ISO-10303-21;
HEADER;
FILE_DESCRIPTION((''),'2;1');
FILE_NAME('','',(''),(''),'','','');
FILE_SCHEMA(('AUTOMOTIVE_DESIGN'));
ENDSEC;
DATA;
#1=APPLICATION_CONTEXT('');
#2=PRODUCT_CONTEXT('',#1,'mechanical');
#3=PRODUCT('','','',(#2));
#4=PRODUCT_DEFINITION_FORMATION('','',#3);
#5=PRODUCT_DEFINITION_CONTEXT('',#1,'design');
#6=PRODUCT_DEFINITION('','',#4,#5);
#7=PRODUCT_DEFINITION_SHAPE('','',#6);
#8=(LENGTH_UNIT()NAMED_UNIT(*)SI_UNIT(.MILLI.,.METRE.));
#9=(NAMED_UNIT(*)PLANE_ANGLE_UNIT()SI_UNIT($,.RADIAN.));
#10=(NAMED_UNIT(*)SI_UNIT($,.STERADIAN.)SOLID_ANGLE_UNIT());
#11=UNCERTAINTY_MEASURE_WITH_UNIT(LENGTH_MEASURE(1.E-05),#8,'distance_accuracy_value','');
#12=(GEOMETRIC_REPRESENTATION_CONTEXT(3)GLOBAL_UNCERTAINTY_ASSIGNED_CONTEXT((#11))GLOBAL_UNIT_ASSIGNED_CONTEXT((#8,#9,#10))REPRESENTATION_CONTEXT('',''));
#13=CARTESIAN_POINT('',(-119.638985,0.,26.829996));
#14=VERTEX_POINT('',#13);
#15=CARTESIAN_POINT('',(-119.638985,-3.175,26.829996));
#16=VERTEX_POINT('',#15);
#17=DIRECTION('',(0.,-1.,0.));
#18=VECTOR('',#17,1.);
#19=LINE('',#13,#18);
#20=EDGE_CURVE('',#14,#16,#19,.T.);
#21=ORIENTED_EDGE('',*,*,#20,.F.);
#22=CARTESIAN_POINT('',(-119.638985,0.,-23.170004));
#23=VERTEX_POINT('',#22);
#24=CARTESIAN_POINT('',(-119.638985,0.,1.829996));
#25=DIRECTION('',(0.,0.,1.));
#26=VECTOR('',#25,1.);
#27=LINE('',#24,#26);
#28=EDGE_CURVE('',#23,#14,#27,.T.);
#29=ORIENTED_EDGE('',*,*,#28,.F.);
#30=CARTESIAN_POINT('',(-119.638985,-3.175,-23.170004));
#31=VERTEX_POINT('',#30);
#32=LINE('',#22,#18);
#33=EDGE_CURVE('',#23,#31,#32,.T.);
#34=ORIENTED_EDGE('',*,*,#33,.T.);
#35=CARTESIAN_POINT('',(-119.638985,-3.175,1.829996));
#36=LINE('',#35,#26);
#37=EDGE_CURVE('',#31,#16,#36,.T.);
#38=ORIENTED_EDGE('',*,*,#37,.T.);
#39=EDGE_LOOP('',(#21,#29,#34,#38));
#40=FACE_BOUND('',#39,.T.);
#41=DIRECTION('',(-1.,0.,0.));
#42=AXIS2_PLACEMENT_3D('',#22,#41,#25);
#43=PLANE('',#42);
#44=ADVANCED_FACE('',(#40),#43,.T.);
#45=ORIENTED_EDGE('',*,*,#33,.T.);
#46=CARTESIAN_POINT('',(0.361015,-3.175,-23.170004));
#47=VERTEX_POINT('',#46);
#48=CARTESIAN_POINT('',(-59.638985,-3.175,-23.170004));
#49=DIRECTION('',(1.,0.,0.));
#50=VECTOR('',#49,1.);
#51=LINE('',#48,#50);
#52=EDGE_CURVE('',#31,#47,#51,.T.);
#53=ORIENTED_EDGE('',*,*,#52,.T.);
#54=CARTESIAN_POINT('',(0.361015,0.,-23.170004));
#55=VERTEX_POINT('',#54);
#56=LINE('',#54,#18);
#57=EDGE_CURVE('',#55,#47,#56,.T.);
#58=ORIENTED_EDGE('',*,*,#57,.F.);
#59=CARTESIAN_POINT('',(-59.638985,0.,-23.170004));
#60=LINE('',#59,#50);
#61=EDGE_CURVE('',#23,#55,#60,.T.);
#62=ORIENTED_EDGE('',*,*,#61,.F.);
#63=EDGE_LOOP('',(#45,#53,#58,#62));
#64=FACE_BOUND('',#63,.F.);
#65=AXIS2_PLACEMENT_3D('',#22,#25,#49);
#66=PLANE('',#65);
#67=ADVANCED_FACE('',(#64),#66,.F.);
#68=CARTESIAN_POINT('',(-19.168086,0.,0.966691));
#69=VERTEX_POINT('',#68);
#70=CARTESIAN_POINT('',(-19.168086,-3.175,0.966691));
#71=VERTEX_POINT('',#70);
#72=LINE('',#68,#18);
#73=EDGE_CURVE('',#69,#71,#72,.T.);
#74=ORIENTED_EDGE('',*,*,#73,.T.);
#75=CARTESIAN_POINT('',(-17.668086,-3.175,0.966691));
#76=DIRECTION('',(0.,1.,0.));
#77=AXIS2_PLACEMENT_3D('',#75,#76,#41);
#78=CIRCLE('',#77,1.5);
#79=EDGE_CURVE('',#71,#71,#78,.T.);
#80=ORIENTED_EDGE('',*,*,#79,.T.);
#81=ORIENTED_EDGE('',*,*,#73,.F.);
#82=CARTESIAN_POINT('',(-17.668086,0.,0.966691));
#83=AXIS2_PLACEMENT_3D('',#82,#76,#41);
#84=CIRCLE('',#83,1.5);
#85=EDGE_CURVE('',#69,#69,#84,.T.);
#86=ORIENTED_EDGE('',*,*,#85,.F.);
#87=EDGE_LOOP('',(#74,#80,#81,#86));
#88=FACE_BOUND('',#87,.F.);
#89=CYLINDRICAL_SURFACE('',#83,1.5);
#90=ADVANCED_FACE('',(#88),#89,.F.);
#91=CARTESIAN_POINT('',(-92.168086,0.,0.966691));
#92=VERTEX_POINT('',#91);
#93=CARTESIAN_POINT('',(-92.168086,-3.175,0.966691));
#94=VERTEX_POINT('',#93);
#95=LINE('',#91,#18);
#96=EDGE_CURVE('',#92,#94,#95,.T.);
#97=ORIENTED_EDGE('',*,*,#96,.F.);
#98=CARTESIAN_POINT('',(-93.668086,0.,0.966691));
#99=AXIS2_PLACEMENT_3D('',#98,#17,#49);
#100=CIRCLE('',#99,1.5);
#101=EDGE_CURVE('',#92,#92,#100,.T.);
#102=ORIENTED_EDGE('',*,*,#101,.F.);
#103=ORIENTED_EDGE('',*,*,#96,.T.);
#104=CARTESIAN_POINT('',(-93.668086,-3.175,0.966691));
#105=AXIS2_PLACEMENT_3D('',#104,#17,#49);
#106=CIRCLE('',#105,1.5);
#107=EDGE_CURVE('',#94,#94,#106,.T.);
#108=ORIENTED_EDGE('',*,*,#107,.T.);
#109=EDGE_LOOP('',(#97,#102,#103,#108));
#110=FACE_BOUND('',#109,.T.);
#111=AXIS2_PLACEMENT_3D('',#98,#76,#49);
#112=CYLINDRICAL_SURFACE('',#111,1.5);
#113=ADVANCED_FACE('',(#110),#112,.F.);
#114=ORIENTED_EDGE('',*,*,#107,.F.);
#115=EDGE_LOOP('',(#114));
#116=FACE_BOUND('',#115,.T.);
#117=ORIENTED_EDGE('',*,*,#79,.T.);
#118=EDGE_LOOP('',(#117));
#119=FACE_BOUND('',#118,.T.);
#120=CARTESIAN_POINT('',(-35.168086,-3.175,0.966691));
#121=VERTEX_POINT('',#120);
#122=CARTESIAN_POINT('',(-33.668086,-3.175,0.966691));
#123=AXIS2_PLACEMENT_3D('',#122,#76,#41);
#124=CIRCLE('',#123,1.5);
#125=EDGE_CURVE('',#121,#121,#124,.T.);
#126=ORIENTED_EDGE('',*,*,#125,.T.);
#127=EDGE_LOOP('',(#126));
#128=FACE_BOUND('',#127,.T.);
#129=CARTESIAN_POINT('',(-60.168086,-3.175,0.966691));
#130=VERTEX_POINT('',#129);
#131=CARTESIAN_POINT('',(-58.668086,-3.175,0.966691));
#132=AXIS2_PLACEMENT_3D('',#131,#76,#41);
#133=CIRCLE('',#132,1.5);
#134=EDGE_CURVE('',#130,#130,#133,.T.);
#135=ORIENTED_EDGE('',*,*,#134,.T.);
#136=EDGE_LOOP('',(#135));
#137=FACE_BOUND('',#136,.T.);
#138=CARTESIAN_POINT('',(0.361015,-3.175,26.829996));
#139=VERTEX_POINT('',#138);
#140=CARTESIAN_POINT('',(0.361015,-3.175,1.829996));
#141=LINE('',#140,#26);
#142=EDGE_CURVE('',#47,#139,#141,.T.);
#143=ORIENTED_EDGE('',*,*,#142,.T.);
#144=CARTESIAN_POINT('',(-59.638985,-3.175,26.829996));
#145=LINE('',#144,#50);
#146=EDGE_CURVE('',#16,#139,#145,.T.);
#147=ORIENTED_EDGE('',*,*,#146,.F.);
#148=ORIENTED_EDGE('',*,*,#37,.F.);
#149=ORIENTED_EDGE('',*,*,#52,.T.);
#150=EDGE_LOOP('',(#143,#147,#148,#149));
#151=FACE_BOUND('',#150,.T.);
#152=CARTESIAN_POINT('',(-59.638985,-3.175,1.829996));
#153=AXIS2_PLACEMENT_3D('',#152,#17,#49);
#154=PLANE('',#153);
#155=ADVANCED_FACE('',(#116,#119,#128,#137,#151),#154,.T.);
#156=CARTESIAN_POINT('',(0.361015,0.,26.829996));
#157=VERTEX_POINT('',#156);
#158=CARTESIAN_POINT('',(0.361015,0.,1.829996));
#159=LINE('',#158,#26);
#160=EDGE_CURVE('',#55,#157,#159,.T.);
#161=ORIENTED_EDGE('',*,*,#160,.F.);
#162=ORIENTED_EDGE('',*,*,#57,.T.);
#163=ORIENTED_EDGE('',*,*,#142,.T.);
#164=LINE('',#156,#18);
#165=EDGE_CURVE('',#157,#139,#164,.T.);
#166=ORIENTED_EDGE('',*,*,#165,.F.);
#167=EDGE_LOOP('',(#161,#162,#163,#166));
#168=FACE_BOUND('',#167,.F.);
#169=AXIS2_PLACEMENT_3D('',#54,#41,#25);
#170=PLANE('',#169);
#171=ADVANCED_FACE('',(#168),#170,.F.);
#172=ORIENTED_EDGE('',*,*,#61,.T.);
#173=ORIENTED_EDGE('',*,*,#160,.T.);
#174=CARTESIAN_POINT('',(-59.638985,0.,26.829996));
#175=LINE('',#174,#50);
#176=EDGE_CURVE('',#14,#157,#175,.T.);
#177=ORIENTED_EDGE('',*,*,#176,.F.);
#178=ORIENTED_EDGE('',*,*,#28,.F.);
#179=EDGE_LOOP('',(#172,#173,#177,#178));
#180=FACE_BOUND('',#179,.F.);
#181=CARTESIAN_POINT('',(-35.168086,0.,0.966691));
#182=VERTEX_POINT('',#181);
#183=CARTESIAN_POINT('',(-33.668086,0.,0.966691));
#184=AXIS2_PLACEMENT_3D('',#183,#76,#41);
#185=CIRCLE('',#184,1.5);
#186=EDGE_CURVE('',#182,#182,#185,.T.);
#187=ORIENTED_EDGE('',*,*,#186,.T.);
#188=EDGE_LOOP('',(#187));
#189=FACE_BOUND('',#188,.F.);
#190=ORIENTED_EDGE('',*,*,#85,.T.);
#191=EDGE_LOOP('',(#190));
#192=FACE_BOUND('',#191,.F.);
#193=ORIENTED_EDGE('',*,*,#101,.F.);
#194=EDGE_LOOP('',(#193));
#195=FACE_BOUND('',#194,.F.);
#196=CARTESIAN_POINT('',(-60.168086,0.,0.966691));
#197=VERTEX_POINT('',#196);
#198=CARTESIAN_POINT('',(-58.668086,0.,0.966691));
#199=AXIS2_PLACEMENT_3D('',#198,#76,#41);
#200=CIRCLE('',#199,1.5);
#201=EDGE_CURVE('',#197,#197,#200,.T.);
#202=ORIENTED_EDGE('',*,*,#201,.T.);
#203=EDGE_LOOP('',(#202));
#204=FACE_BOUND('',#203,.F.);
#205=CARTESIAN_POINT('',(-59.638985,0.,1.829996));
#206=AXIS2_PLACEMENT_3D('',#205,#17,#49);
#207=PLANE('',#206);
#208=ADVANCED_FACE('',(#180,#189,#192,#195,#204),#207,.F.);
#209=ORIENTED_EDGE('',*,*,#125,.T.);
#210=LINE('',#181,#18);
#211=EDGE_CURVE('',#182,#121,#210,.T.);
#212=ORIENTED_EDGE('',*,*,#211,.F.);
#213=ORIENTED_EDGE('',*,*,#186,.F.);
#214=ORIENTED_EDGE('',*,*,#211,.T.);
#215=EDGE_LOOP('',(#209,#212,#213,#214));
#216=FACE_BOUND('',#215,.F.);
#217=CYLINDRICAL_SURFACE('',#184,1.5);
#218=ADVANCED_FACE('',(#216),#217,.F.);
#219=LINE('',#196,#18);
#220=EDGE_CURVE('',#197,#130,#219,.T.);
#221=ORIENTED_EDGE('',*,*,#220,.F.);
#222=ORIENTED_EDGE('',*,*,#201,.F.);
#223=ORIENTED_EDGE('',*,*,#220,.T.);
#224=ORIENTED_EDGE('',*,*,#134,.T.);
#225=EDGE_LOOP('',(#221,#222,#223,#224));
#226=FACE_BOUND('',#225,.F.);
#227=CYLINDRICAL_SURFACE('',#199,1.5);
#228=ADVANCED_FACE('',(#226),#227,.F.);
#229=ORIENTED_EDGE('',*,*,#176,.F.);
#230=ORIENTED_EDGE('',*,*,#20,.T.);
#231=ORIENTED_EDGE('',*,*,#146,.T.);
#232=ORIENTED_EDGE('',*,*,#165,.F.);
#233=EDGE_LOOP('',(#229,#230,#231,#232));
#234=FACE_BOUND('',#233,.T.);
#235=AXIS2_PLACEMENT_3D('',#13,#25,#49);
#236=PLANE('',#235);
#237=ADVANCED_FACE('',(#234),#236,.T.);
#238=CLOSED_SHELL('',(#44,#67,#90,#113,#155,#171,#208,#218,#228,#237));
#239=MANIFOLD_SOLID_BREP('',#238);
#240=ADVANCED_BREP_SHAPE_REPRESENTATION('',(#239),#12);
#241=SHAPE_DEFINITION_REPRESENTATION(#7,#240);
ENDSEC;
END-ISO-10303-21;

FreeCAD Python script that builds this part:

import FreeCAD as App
import Part
import Sketcher
from FreeCAD import Vector

doc = App.newDocument("Part")
body = doc.addObject("PartDesign::Body", "Body")

sketch1 = doc.addObject("Sketcher::SketchObject", "Sketch")
body.addObject(sketch1)
sketch1.AttachmentSupport = (doc.XZ_Plane, [""])
sketch1.MapMode = "FlatFace"
sketch1.addGeometry(Part.LineSegment(Vector(-119.6, 26.8, 0), Vector(-119.6, -23.2, 0)), False)
sketch1.addGeometry(Part.LineSegment(Vector(-119.6, -23.2, 0), Vector(0.4, -23.2, 0)), False)
sketch1.addGeometry(Part.LineSegment(Vector(0.4, -23.2, 0), Vector(0.4, 26.8, 0)), False)
sketch1.addGeometry(Part.LineSegment(Vector(0.4, 26.8, 0), Vector(-119.6, 26.8, 0)), False)
sketch1.addGeometry(Part.Circle(Vector(-93.7, 1, 0), Vector(0, 0, 1), 1.5), False)
sketch1.addGeometry(Part.Circle(Vector(-58.7, 1, 0), Vector(0, 0, 1), 1.5), False)
sketch1.addGeometry(Part.Circle(Vector(-33.7, 1, 0), Vector(0, 0, 1), 1.5), False)
sketch1.addGeometry(Part.Circle(Vector(-17.7, 1, 0), Vector(0, 0, 1), 1.5), False)
sketch1.addConstraint(Sketcher.Constraint("Coincident", 0, 2, 1, 1))
sketch1.addConstraint(Sketcher.Constraint("Coincident", 1, 2, 2, 1))
sketch1.addConstraint(Sketcher.Constraint("Coincident", 2, 2, 3, 1))
sketch1.addConstraint(Sketcher.Constraint("Coincident", 3, 2, 0, 1))
sketch1.addConstraint(Sketcher.Constraint("Vertical", 0))
sketch1.addConstraint(Sketcher.Constraint("Horizontal", 1))
sketch1.addConstraint(Sketcher.Constraint("Vertical", 2))
sketch1.addConstraint(Sketcher.Constraint("Horizontal", 3))
sketch1.addConstraint(Sketcher.Constraint("Equal", 4, 5))
sketch1.addConstraint(Sketcher.Constraint("Equal", 5, 6))
sketch1.addConstraint(Sketcher.Constraint("Equal", 6, 7))
sketch1.addConstraint(Sketcher.Constraint("Horizontal", 4, 3, 5, 3))
sketch1.addConstraint(Sketcher.Constraint("Horizontal", 5, 3, 6, 3))
sketch1.addConstraint(Sketcher.Constraint("Horizontal", 6, 3, 7, 3))
sketch1.addConstraint(Sketcher.Constraint("Diameter", 4, 3.0))
sketch1.addConstraint(Sketcher.Constraint("DistanceX", 1, 1, 1, 2, 120.0))
sketch1.addConstraint(Sketcher.Constraint("DistanceY", 0, 2, 0, 1, 50.0))
sketch1.addConstraint(Sketcher.Constraint("DistanceX", 4, 3, 5, 3, 35.0))
sketch1.addConstraint(Sketcher.Constraint("DistanceX", 5, 3, 6, 3, 25.0))
sketch1.addConstraint(Sketcher.Constraint("DistanceX", 6, 3, 7, 3, 16.0))
sketch1.addConstraint(Sketcher.Constraint("DistanceX", 0, 2, 4, 3, 25.970899))
sketch1.addConstraint(Sketcher.Constraint("DistanceY", -1, 1, 4, 3, 0.966691))
sketch1.addConstraint(Sketcher.Constraint("DistanceX", 4, 3, -1, 1, 93.668086))
sketch1.addConstraint(Sketcher.Constraint("DistanceY", 0, 2, -1, 1, 23.170004))
pad1 = doc.addObject("PartDesign::Pad", "Pad")
body.addObject(pad1)
pad1.Profile = sketch1
pad1.Length = 3.175

doc.recompute()
